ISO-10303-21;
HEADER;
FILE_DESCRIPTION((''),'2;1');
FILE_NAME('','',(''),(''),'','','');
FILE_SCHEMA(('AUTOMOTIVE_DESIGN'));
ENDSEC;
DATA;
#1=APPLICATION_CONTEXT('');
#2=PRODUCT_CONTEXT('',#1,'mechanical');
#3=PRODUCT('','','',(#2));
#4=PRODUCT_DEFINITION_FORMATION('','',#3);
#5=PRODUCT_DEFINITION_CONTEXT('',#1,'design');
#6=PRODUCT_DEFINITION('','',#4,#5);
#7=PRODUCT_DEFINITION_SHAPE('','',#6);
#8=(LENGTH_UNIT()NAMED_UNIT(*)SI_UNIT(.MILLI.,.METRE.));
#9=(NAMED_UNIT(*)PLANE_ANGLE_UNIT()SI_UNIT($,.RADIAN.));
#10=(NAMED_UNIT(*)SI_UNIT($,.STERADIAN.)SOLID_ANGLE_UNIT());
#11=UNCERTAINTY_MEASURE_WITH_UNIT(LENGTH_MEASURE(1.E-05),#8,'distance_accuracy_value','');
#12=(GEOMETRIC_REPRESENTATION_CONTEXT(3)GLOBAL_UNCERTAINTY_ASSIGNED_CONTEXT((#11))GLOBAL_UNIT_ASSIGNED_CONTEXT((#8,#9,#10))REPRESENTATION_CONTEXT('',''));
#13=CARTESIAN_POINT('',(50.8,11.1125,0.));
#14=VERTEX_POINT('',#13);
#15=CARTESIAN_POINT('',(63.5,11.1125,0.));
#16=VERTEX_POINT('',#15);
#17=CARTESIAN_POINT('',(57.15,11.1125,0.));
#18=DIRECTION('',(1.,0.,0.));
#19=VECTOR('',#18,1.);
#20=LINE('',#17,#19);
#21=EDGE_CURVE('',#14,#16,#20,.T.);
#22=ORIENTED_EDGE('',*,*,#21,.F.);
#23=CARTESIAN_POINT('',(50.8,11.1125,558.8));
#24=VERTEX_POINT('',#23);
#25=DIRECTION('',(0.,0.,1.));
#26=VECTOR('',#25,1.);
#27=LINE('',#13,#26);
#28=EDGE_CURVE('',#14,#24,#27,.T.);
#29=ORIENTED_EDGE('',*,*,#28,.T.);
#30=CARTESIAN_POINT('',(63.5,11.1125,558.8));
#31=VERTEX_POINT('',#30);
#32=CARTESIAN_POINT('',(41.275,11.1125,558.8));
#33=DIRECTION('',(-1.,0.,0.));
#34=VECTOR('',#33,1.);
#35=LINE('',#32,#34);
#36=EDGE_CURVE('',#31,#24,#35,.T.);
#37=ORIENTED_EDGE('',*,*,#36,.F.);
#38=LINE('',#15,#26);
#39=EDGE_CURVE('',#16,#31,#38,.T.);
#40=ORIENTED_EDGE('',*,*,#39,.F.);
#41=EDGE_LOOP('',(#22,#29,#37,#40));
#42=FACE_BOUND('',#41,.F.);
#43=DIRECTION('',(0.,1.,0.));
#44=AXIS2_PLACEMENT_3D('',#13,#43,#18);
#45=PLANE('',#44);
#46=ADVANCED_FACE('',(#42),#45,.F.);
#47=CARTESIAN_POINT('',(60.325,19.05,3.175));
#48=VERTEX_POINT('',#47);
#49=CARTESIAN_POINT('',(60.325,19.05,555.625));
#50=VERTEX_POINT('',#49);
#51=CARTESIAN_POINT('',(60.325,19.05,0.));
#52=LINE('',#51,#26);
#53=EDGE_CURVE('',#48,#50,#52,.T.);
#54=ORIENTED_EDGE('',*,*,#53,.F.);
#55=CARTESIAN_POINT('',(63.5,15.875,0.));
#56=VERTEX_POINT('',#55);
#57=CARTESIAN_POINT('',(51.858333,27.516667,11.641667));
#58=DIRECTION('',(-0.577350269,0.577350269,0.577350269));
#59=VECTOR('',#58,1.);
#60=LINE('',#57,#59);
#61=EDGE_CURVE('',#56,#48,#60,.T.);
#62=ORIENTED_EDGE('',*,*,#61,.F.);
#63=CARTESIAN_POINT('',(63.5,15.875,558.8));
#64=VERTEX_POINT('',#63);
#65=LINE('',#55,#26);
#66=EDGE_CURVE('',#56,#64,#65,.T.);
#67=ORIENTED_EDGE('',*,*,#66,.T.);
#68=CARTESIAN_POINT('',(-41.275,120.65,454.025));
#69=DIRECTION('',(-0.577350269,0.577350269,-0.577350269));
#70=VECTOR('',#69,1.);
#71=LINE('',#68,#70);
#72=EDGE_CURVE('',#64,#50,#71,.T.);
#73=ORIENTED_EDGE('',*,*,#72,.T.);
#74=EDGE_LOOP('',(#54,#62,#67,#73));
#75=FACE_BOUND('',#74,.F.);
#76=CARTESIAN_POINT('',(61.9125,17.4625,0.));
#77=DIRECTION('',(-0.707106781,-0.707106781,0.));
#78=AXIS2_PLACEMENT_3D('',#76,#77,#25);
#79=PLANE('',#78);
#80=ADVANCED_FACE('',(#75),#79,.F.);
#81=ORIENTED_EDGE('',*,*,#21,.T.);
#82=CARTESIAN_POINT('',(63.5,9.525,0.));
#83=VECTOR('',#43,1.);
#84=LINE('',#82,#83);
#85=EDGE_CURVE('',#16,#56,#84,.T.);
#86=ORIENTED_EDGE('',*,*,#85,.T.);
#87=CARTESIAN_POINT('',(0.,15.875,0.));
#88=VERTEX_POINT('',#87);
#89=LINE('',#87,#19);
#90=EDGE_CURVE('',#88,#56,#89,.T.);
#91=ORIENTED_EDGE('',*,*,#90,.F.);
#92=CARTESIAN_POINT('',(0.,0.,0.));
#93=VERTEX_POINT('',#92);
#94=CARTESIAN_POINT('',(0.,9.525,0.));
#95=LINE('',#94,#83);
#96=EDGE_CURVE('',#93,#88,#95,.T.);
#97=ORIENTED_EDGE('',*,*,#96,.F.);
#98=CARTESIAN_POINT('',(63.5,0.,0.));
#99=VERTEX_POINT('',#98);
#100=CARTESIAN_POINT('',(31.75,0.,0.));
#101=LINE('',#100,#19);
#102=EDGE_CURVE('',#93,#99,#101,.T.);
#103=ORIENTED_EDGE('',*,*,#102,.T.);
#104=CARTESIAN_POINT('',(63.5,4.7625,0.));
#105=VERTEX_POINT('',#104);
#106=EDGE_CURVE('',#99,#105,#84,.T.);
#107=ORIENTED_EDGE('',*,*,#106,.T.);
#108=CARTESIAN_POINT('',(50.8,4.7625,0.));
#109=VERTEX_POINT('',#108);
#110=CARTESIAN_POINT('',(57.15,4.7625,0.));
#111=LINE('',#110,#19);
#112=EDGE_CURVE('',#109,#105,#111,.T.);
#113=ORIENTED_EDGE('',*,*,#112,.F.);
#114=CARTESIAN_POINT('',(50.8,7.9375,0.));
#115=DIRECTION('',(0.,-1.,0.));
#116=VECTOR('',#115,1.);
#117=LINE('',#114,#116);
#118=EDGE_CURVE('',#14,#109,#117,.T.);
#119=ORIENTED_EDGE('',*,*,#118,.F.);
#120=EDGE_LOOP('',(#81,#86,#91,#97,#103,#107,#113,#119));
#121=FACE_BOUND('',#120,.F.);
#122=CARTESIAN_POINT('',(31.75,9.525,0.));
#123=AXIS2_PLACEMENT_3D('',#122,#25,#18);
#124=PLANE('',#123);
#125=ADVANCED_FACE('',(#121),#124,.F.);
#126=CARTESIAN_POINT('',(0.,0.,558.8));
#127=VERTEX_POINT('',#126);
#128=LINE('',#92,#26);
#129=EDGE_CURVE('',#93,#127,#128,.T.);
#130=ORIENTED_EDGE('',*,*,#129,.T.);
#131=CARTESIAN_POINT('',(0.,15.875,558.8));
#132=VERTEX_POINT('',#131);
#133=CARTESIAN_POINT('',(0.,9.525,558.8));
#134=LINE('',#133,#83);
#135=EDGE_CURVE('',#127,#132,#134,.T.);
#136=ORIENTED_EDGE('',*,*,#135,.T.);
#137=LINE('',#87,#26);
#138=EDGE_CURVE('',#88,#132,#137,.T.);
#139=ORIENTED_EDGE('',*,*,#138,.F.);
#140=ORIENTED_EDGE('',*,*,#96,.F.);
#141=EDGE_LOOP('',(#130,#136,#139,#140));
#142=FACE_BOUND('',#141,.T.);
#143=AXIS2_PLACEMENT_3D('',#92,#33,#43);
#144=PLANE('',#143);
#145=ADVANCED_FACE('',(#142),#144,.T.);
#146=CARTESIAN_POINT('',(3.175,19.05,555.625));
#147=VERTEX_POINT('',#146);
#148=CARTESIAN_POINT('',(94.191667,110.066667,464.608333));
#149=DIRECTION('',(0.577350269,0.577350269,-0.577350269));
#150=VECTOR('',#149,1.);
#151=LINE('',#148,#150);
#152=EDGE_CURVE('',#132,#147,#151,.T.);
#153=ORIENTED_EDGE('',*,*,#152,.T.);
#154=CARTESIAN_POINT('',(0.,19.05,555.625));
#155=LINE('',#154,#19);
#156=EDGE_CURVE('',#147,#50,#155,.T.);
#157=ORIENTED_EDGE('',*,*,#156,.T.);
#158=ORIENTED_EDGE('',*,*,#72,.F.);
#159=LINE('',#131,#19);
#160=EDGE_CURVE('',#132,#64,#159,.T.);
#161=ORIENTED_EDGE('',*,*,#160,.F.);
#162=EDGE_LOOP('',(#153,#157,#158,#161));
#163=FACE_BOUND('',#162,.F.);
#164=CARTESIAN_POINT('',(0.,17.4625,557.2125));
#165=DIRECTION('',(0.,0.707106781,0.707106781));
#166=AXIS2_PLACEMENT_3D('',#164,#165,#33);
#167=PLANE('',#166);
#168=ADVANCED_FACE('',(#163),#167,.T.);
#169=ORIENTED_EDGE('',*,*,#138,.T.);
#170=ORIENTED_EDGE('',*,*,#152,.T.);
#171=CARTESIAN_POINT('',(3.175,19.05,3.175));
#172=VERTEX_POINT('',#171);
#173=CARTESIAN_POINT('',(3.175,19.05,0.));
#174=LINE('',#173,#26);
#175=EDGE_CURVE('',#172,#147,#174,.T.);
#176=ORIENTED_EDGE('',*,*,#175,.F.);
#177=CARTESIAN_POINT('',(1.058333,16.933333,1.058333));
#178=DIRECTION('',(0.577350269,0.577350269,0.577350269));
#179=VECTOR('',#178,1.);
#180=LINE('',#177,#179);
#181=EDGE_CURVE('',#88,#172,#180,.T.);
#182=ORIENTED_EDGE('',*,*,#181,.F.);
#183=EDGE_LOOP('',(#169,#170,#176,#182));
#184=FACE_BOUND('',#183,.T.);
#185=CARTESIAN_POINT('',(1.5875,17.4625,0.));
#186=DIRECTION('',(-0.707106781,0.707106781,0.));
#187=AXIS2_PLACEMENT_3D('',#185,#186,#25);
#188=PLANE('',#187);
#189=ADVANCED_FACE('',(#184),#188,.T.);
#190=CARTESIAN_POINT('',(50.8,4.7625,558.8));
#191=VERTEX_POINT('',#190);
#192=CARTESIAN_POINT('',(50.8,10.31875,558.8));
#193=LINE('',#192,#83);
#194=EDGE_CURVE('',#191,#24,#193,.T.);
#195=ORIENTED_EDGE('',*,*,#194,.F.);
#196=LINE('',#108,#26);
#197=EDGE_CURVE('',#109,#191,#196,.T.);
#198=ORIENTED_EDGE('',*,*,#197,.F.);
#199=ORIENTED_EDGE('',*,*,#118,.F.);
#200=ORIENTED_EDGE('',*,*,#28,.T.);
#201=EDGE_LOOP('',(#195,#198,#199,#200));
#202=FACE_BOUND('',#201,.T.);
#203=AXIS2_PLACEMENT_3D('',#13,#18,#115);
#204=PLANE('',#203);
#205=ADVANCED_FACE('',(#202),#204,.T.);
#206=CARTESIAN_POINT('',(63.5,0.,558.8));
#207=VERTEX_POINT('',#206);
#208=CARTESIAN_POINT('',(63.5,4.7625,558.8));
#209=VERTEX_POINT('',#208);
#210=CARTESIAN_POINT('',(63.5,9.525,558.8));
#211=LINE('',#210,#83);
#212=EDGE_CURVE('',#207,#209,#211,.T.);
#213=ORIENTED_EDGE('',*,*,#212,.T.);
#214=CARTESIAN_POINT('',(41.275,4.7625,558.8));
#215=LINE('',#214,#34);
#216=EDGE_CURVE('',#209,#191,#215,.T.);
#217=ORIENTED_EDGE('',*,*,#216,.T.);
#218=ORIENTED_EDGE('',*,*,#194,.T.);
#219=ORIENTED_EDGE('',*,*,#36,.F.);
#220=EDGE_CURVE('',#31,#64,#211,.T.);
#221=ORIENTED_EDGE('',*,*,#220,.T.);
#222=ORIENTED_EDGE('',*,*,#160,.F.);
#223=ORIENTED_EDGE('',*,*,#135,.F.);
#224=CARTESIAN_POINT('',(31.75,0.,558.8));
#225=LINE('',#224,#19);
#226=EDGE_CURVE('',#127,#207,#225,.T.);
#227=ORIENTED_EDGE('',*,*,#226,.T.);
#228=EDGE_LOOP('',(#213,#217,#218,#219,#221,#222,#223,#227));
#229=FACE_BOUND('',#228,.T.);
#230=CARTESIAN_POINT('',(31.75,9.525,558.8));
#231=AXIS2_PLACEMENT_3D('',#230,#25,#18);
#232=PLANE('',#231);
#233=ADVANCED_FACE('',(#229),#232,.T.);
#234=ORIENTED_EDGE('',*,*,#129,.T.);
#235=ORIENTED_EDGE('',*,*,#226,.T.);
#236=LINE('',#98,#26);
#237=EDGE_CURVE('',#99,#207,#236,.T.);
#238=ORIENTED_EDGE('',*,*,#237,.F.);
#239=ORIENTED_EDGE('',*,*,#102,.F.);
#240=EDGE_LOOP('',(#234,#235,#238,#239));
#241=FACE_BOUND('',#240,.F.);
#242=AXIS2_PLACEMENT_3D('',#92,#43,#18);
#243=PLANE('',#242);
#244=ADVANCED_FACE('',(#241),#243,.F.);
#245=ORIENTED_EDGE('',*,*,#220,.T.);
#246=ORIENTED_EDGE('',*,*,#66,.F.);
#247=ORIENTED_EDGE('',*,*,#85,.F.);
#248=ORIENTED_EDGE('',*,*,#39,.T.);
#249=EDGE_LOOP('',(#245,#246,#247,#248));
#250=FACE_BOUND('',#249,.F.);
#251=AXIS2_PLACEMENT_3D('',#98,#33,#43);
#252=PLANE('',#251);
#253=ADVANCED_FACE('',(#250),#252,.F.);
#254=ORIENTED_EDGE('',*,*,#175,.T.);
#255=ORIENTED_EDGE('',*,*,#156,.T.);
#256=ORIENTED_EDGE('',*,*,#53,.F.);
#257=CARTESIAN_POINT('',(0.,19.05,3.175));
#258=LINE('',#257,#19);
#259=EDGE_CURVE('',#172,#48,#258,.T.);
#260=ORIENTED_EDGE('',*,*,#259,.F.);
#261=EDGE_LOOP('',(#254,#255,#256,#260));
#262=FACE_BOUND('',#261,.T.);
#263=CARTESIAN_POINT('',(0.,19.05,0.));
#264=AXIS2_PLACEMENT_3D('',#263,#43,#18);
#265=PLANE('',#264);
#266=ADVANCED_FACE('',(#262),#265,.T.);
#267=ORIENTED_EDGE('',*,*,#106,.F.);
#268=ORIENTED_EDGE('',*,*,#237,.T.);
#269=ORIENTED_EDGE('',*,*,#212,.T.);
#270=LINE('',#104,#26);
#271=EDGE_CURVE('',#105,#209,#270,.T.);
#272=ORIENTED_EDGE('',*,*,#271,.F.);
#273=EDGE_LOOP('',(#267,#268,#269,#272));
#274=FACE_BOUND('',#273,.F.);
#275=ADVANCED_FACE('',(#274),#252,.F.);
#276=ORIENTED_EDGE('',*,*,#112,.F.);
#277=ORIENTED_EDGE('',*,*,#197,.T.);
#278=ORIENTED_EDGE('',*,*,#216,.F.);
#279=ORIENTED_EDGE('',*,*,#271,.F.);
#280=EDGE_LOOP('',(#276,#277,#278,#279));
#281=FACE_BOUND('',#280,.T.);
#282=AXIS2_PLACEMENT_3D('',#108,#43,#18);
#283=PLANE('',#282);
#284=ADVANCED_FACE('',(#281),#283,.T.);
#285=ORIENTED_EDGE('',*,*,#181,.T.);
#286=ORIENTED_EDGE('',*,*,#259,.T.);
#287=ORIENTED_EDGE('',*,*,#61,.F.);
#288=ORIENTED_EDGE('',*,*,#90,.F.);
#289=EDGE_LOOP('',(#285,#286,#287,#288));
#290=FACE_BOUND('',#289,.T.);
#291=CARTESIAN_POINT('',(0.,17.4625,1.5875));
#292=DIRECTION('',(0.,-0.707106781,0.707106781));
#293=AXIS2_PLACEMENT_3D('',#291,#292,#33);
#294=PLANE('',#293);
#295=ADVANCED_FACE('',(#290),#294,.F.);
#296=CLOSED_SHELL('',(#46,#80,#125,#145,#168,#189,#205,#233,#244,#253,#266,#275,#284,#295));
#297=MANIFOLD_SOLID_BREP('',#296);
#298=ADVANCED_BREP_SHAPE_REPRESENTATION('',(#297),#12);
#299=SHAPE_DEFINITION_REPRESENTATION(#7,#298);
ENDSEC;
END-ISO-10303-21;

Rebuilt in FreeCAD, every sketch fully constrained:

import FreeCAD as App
import Part
import Sketcher

V = App.Vector
Q = App.Units.Quantity


def edges_at(feature, points):
    """Names of the edges that pass closest to the given points."""
    edges = feature.Shape.Edges
    near = lambda p: min(range(len(edges)), key=lambda i: edges[i].distToShape(Part.Vertex(*p))[0])
    return sorted({f"Edge{near(p) + 1}" for p in points})

doc = App.newDocument("Part")
body = doc.addObject("PartDesign::Body", "Body")

# Sketch on XY plane
sketch1 = body.newObject("Sketcher::SketchObject", "Sketch")
sketch1.AttachmentSupport = (doc.getObject("XY_Plane"), [""])
sketch1.MapMode = "FlatFace"
sketch1.addGeometry(Part.LineSegment(V(0, 19, 0), V(0, 0, 0)), False)
sketch1.addGeometry(Part.LineSegment(V(0, 0, 0), V(64, 0, 0)), False)
sketch1.addGeometry(Part.LineSegment(V(64, 0, 0), V(64, 19, 0)), False)
sketch1.addGeometry(Part.LineSegment(V(64, 19, 0), V(0, 19, 0)), False)
sketch1.addConstraint(Sketcher.Constraint("Coincident", 0, 2, 1, 1))
sketch1.addConstraint(Sketcher.Constraint("Coincident", 1, 2, 2, 1))
sketch1.addConstraint(Sketcher.Constraint("Coincident", 2, 2, 3, 1))
sketch1.addConstraint(Sketcher.Constraint("Coincident", 3, 2, 0, 1))
sketch1.addConstraint(Sketcher.Constraint("Vertical", 0))
sketch1.addConstraint(Sketcher.Constraint("Horizontal", 1))
sketch1.addConstraint(Sketcher.Constraint("Vertical", 2))
sketch1.addConstraint(Sketcher.Constraint("Horizontal", 3))
sketch1.addConstraint(Sketcher.Constraint("Coincident", 0, 2, -1, 1))
sketch1.addConstraint(Sketcher.Constraint("DistanceX", 1, 1, 1, 2, Q("2.5 in")))
sketch1.addConstraint(Sketcher.Constraint("DistanceY", 0, 2, 0, 1, Q("0.75 in")))
pad1 = body.newObject("PartDesign::Pad", "Pad")
pad1.Profile = sketch1
pad1.Length = Q("22 in")
doc.recompute()

chamfer = body.newObject("PartDesign::Chamfer", "Chamfer")
chamfer.Base = (pad1, edges_at(pad1, [
    (0, 19.05, 279.4),
    (63.5, 19.05, 279.4),
    (31.75, 19.05, 0),
    (31.75, 19.05, 558.8),
]))
chamfer.Size = Q("0.125 in")

# Sketch on XY plane
sketch2 = body.newObject("Sketcher::SketchObject", "Sketch001")
sketch2.AttachmentSupport = (doc.getObject("XY_Plane"), [""])
sketch2.MapMode = "FlatFace"
sketch2.addGeometry(Part.LineSegment(V(51, 5, 0), V(51, 11, 0)), False)
sketch2.addGeometry(Part.LineSegment(V(51, 11, 0), V(64, 11, 0)), False)
sketch2.addGeometry(Part.LineSegment(V(64, 11, 0), V(64, 5, 0)), False)
sketch2.addGeometry(Part.LineSegment(V(64, 5, 0), V(51, 5, 0)), False)
sketch2.addConstraint(Sketcher.Constraint("Coincident", 0, 2, 1, 1))
sketch2.addConstraint(Sketcher.Constraint("Coincident", 1, 2, 2, 1))
sketch2.addConstraint(Sketcher.Constraint("Coincident", 2, 2, 3, 1))
sketch2.addConstraint(Sketcher.Constraint("Coincident", 3, 2, 0, 1))
sketch2.addConstraint(Sketcher.Constraint("Vertical", 0))
sketch2.addConstraint(Sketcher.Constraint("Horizontal", 1))
sketch2.addConstraint(Sketcher.Constraint("Vertical", 2))
sketch2.addConstraint(Sketcher.Constraint("Horizontal", 3))
sketch2.addConstraint(Sketcher.Constraint("DistanceX", 1, 1, 1, 2, Q("0.5 in")))
sketch2.addConstraint(Sketcher.Constraint("DistanceX", -1, 1, 0, 2, Q("2 in")))
sketch2.addConstraint(Sketcher.Constraint("DistanceY", 0, 1, 0, 2, Q("0.25 in")))
sketch2.addConstraint(Sketcher.Constraint("DistanceY", -1, 1, 0, 2, Q("0.4375 in")))
pocket1 = body.newObject("PartDesign::Pocket", "Pocket")
pocket1.Profile = sketch2
pocket1.Type = "ThroughAll"
pocket1.Reversed = True

doc.recompute()
